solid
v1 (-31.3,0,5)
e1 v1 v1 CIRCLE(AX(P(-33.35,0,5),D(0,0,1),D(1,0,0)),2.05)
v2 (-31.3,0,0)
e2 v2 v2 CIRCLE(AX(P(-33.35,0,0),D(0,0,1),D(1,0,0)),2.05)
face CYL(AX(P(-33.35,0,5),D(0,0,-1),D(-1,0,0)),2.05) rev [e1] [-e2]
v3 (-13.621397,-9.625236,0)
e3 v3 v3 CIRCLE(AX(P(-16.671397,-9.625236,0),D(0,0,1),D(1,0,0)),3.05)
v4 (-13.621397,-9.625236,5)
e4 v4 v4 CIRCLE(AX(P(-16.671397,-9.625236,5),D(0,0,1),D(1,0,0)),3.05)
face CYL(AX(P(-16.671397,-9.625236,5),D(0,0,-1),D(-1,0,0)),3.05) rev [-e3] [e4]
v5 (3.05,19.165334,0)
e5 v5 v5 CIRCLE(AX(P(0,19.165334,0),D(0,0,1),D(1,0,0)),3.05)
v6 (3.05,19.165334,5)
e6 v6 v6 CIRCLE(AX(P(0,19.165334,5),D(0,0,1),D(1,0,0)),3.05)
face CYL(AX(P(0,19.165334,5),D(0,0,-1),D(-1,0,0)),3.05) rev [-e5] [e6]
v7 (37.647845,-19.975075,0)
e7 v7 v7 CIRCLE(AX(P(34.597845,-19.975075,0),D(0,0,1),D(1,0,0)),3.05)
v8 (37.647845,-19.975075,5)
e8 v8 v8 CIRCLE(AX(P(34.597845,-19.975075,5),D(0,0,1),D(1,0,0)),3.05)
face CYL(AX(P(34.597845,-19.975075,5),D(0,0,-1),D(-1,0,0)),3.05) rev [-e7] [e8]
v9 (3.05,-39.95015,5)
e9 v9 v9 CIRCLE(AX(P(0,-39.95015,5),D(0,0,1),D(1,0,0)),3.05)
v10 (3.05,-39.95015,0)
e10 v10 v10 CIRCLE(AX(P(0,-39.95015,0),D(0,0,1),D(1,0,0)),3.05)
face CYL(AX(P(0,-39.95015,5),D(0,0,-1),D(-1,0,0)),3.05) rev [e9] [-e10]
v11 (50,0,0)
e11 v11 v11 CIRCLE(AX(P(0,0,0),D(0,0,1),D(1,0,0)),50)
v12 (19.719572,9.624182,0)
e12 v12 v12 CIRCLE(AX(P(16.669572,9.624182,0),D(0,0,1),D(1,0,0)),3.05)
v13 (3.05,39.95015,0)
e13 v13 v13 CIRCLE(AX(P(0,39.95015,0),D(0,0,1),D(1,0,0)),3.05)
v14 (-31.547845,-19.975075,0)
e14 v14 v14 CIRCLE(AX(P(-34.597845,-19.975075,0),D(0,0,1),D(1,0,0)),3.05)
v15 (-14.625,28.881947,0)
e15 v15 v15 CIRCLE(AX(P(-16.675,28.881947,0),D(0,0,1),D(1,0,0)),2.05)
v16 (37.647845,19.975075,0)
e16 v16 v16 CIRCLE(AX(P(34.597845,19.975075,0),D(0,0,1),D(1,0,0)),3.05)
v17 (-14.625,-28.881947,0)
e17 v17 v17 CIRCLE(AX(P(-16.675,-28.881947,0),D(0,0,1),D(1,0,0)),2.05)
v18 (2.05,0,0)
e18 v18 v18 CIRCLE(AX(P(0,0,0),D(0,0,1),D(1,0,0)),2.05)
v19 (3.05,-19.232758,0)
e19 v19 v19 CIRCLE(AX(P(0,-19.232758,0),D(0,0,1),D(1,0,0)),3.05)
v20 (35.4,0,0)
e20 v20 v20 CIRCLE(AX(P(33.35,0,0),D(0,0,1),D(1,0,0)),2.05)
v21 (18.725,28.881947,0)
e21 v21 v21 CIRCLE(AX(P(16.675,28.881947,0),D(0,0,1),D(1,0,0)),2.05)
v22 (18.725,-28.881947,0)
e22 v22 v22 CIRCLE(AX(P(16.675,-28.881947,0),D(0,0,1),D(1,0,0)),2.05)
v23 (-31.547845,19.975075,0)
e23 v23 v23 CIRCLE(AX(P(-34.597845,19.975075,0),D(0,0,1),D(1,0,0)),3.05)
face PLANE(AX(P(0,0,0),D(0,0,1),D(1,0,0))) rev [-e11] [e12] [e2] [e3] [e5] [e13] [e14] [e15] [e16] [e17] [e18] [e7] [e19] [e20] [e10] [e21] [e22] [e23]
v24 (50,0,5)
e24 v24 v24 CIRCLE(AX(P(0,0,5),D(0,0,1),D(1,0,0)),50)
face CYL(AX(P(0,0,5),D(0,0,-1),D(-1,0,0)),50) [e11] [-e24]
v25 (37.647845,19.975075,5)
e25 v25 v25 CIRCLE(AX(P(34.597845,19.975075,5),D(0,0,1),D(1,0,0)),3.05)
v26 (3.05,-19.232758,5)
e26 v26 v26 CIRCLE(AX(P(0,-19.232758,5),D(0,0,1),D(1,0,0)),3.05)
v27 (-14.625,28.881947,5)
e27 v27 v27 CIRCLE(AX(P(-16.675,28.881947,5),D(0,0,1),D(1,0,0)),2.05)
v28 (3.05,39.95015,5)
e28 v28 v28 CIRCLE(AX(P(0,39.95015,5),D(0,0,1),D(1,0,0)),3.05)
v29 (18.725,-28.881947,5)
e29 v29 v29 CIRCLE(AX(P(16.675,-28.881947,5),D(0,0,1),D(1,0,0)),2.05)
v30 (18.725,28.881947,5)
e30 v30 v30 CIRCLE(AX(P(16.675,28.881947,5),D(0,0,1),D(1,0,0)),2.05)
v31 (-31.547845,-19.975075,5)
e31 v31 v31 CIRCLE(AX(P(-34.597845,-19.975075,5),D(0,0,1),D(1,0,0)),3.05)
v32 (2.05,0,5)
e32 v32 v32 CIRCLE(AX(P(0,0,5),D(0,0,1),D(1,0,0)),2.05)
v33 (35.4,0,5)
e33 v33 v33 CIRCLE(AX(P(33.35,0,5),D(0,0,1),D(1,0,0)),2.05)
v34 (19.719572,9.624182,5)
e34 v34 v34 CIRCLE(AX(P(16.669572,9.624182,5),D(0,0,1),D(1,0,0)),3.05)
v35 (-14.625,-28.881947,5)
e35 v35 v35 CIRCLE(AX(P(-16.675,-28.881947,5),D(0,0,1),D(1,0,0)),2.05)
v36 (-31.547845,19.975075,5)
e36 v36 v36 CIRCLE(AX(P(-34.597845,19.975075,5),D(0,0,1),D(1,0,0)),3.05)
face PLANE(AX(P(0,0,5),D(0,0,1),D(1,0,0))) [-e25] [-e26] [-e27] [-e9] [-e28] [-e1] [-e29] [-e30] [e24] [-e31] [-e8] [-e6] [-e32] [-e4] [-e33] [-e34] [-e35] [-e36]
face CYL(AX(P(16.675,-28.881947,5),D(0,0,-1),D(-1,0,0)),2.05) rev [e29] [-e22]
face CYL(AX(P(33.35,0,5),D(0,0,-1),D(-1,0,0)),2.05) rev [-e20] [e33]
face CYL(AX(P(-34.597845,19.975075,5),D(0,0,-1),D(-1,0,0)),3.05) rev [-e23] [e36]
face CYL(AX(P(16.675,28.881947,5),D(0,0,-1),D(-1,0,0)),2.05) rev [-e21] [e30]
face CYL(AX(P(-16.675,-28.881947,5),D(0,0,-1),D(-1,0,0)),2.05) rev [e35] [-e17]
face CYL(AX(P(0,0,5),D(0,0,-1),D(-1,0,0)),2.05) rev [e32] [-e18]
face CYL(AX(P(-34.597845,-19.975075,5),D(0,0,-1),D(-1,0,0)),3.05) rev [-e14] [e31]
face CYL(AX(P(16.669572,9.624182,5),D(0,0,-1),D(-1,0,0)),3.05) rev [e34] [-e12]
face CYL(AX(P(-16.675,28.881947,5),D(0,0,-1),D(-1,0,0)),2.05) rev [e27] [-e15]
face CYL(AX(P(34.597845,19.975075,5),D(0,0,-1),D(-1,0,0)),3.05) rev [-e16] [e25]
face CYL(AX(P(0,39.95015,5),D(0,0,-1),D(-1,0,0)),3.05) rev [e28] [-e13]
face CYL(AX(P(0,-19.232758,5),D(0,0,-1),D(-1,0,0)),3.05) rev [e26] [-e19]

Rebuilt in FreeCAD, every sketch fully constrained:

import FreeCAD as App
import Part
import Sketcher
Q = App.Units.Quantity

doc = App.newDocument("Part")
body = doc.addObject("PartDesign::Body", "Body")

# Sketch on XY plane
sketch1 = body.newObject("Sketcher::SketchObject", "Sketch")
sketch1.AttachmentSupport = (doc.getObject("XY_Plane"), [""])
sketch1.MapMode = "FlatFace"
sketch1.addGeometry(Part.Circle(App.Vector(0, 0, 0), App.Vector(0, 0, 1), 50), False)
sketch1.addGeometry(Part.Circle(App.Vector(-16.7, -28.9, 0), App.Vector(0, 0, 1), 2), False)
sketch1.addGeometry(Part.Circle(App.Vector(-34.6, -20, 0), App.Vector(0, 0, 1), 3), False)
sketch1.addGeometry(Part.Circle(App.Vector(-33.4, 0, 0), App.Vector(0, 0, 1), 2), False)
sketch1.addGeometry(Part.Circle(App.Vector(-16.7, -9.6, 0), App.Vector(0, 0, 1), 3), False)
sketch1.addGeometry(Part.Circle(App.Vector(0, -40, 0), App.Vector(0, 0, 1), 3), False)
sketch1.addGeometry(Part.Circle(App.Vector(16.7, -28.9, 0), App.Vector(0, 0, 1), 2), False)
sketch1.addGeometry(Part.Circle(App.Vector(0, -19.2, 0), App.Vector(0, 0, 1), 3), False)
sketch1.addGeometry(Part.Circle(App.Vector(0, 0, 0), App.Vector(0, 0, 1), 2), False)
sketch1.addGeometry(Part.Circle(App.Vector(34.6, -20, 0), App.Vector(0, 0, 1), 3), False)
sketch1.addGeometry(Part.Circle(App.Vector(33.4, 0, 0), App.Vector(0, 0, 1), 2), False)
sketch1.addGeometry(Part.Circle(App.Vector(-34.6, 20, 0), App.Vector(0, 0, 1), 3), False)
sketch1.addGeometry(Part.Circle(App.Vector(-16.7, 28.9, 0), App.Vector(0, 0, 1), 2), False)
sketch1.addGeometry(Part.Circle(App.Vector(16.7, 9.6, 0), App.Vector(0, 0, 1), 3), False)
sketch1.addGeometry(Part.Circle(App.Vector(0, 19.2, 0), App.Vector(0, 0, 1), 3), False)
sketch1.addGeometry(Part.Circle(App.Vector(34.6, 20, 0), App.Vector(0, 0, 1), 3), False)
sketch1.addGeometry(Part.Circle(App.Vector(16.7, 28.9, 0), App.Vector(0, 0, 1), 2), False)
sketch1.addGeometry(Part.Circle(App.Vector(0, 40, 0), App.Vector(0, 0, 1), 3), False)
sketch1.addConstraint(Sketcher.Constraint("Coincident", 0, 3, -1, 1))
sketch1.addConstraint(Sketcher.Constraint("Coincident", 8, 3, -1, 1))
sketch1.addConstraint(Sketcher.Constraint("Equal", 1, 3))
sketch1.addConstraint(Sketcher.Constraint("Equal", 2, 4))
sketch1.addConstraint(Sketcher.Constraint("Equal", 4, 5))
sketch1.addConstraint(Sketcher.Constraint("Equal", 3, 6))
sketch1.addConstraint(Sketcher.Constraint("Equal", 5, 7))
sketch1.addConstraint(Sketcher.Constraint("Equal", 6, 8))
sketch1.addConstraint(Sketcher.Constraint("Equal", 7, 9))
sketch1.addConstraint(Sketcher.Constraint("Equal", 8, 10))
sketch1.addConstraint(Sketcher.Constraint("Equal", 9, 11))
sketch1.addConstraint(Sketcher.Constraint("Equal", 10, 12))
sketch1.addConstraint(Sketcher.Constraint("Equal", 11, 13))
sketch1.addConstraint(Sketcher.Constraint("Equal", 13, 14))
sketch1.addConstraint(Sketcher.Constraint("Equal", 14, 15))
sketch1.addConstraint(Sketcher.Constraint("Equal", 12, 16))
sketch1.addConstraint(Sketcher.Constraint("Equal", 15, 17))
sketch1.addConstraint(Sketcher.Constraint("Symmetric", 3, 3, 10, 3, -1, 1))
sketch1.addConstraint(Sketcher.Constraint("Symmetric", 9, 3, 11, 3, -1, 1))
sketch1.addConstraint(Sketcher.Constraint("Symmetric", 6, 3, 12, 3, -1, 1))
sketch1.addConstraint(Sketcher.Constraint("Symmetric", 2, 3, 15, 3, -1, 1))
sketch1.addConstraint(Sketcher.Constraint("Symmetric", 1, 3, 16, 3, -1, 1))
sketch1.addConstraint(Sketcher.Constraint("Symmetric", 5, 3, 17, 3, -1, 1))
sketch1.addConstraint(Sketcher.Constraint("Symmetric", 1, 3, 6, 3, -2))
sketch1.addConstraint(Sketcher.Constraint("Symmetric", 2, 3, 9, 3, -2))
sketch1.addConstraint(Sketcher.Constraint("PointOnObject", 3, 3, -1))
sketch1.addConstraint(Sketcher.Constraint("PointOnObject", 5, 3, -2))
sketch1.addConstraint(Sketcher.Constraint("PointOnObject", 7, 3, -2))
sketch1.addConstraint(Sketcher.Constraint("PointOnObject", 14, 3, -2))
sketch1.addConstraint(Sketcher.Constraint("Diameter", 0, Q("100 mm")))
sketch1.addConstraint(Sketcher.Constraint("Diameter", 1, Q("4.1 mm")))
sketch1.addConstraint(Sketcher.Constraint("Diameter", 2, Q("6.1 mm")))
sketch1.addConstraint(Sketcher.Constraint("DistanceX", 3, 3, -1, 1, Q("33.35 mm")))
sketch1.addConstraint(Sketcher.Constraint("DistanceX", 1, 3, 6, 3, Q("33.35 mm")))
sketch1.addConstraint(Sketcher.Constraint("DistanceY", 5, 3, -1, 1, Q("39.95015 mm")))
sketch1.addConstraint(Sketcher.Constraint("DistanceX", -1, 1, 13, 3, Q("16.669572 mm")))
sketch1.addConstraint(Sketcher.Constraint("DistanceY", -1, 1, 13, 3, Q("9.624182 mm")))
sketch1.addConstraint(Sketcher.Constraint("DistanceY", 1, 3, 4, 3, Q("19.256712 mm")))
sketch1.addConstraint(Sketcher.Constraint("DistanceY", 2, 3, 4, 3, Q("10.34984 mm")))
sketch1.addConstraint(Sketcher.Constraint("DistanceY", 1, 3, 7, 3, Q("9.64919 mm")))
sketch1.addConstraint(Sketcher.Constraint("DistanceY", 4, 3, 11, 3, Q("29.600311 mm")))
sketch1.addConstraint(Sketcher.Constraint("DistanceY", 4, 3, 14, 3, Q("28.79057 mm")))
sketch1.addConstraint(Sketcher.Constraint("DistanceX", 2, 3, -1, 1, Q("34.597845 mm")))
sketch1.addConstraint(Sketcher.Constraint("DistanceX", 4, 3, -1, 1, Q("16.671397 mm")))
pad1 = body.newObject("PartDesign::Pad", "Pad")
pad1.Profile = sketch1
pad1.Length = 5

doc.recompute()
